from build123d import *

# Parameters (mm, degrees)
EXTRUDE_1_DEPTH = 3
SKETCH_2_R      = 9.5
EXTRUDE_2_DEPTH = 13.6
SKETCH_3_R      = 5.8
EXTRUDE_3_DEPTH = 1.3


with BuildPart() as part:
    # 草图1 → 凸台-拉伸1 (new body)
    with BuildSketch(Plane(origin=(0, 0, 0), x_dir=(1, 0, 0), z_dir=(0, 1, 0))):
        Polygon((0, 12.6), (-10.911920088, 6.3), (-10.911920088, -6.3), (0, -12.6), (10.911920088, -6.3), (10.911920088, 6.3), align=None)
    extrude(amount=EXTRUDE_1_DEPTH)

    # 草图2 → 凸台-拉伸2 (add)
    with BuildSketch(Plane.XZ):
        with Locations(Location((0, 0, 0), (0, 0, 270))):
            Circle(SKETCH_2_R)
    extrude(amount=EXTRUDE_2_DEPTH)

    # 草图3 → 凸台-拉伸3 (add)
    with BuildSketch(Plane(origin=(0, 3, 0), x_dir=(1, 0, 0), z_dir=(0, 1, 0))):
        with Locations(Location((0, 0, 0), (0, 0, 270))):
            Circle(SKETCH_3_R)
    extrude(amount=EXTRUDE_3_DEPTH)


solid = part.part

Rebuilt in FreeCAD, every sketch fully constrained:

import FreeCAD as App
import Part
import Sketcher
from FreeCAD import Vector
Q = App.Units.Quantity


def add_polygon(sketch, points):
    """Adds a closed chain of lines whose ends are joined by coincident constraints."""
    first, n = sketch.GeometryCount, len(points)
    for a, b in zip(points, points[1:] + points[:1]):
        sketch.addGeometry(Part.LineSegment(App.Vector(*a, 0), App.Vector(*b, 0)), False)
    for i in range(n):
        sketch.addConstraint(Sketcher.Constraint("Coincident", first + i, 2, first + (i + 1) % n, 1))

doc = App.newDocument("Part")
body = doc.addObject("PartDesign::Body", "Body")

# Sketch on XZ plane
sketch1 = body.newObject("Sketcher::SketchObject", "Sketch")
sketch1.AttachmentSupport = (doc.getObject("XZ_Plane"), [""])
sketch1.MapMode = "FlatFace"
add_polygon(sketch1, [(0, -12.6), (-10.91192, -6.3), (-10.91192, 6.3), (0, 12.6), (10.91192, 6.3), (10.91192, -6.3)])  # lines 0-5
sketch1.addConstraint([
    Sketcher.Constraint("Vertical", 1),
    Sketcher.Constraint("Vertical", 4),
    Sketcher.Constraint("Symmetric", 0, 2, 3, 2, -1, 1),
    Sketcher.Constraint("Symmetric", 2, 2, 5, 2, -1, 1),
    Sketcher.Constraint("PointOnObject", 2, 2, -2),
    Sketcher.Constraint("Parallel", 2, 5),
    Sketcher.Constraint("Horizontal", 1, 2, 3, 2),
    Sketcher.Constraint("Angle", 0, Q("150 deg")),
    Sketcher.Constraint("DistanceY", 1, 1, 1, 2, 12.6),
    Sketcher.Constraint("Distance", 0, 12.6),
])
pad1 = body.newObject("PartDesign::Pad", "Pad")
pad1.Profile = sketch1
pad1.Length = 3
pad1.Reversed = True

# Sketch on XZ plane
sketch2 = body.newObject("Sketcher::SketchObject", "Sketch001")
sketch2.AttachmentSupport = (doc.getObject("XZ_Plane"), [""])
sketch2.MapMode = "FlatFace"
sketch2.addGeometry(Part.Circle(Vector(0, 0, 0), Vector(0, 0, 1), 9.5), False)
sketch2.addConstraint([
    Sketcher.Constraint("Coincident", 0, 3, -1, 1),
    Sketcher.Constraint("Diameter", 0, 19.0),
])
pad2 = body.newObject("PartDesign::Pad", "Pad001")
pad2.Profile = sketch2
pad2.Length = 13.6

# Sketch on XZ plane
sketch3 = body.newObject("Sketcher::SketchObject", "Sketch002")
sketch3.AttachmentSupport = (doc.getObject("XZ_Plane"), [""])
sketch3.MapMode = "FlatFace"
sketch3.AttachmentOffset = App.Placement(Vector(0, 0, -3), App.Rotation())
sketch3.addGeometry(Part.Circle(Vector(0, 0, 0), Vector(0, 0, 1), 5.8), False)
sketch3.addConstraint([
    Sketcher.Constraint("Coincident", 0, 3, -1, 1),
    Sketcher.Constraint("Diameter", 0, 11.6),
])
pad3 = body.newObject("PartDesign::Pad", "Pad002")
pad3.Profile = sketch3
pad3.Length = 1.3
pad3.Reversed = True

doc.recompute()
